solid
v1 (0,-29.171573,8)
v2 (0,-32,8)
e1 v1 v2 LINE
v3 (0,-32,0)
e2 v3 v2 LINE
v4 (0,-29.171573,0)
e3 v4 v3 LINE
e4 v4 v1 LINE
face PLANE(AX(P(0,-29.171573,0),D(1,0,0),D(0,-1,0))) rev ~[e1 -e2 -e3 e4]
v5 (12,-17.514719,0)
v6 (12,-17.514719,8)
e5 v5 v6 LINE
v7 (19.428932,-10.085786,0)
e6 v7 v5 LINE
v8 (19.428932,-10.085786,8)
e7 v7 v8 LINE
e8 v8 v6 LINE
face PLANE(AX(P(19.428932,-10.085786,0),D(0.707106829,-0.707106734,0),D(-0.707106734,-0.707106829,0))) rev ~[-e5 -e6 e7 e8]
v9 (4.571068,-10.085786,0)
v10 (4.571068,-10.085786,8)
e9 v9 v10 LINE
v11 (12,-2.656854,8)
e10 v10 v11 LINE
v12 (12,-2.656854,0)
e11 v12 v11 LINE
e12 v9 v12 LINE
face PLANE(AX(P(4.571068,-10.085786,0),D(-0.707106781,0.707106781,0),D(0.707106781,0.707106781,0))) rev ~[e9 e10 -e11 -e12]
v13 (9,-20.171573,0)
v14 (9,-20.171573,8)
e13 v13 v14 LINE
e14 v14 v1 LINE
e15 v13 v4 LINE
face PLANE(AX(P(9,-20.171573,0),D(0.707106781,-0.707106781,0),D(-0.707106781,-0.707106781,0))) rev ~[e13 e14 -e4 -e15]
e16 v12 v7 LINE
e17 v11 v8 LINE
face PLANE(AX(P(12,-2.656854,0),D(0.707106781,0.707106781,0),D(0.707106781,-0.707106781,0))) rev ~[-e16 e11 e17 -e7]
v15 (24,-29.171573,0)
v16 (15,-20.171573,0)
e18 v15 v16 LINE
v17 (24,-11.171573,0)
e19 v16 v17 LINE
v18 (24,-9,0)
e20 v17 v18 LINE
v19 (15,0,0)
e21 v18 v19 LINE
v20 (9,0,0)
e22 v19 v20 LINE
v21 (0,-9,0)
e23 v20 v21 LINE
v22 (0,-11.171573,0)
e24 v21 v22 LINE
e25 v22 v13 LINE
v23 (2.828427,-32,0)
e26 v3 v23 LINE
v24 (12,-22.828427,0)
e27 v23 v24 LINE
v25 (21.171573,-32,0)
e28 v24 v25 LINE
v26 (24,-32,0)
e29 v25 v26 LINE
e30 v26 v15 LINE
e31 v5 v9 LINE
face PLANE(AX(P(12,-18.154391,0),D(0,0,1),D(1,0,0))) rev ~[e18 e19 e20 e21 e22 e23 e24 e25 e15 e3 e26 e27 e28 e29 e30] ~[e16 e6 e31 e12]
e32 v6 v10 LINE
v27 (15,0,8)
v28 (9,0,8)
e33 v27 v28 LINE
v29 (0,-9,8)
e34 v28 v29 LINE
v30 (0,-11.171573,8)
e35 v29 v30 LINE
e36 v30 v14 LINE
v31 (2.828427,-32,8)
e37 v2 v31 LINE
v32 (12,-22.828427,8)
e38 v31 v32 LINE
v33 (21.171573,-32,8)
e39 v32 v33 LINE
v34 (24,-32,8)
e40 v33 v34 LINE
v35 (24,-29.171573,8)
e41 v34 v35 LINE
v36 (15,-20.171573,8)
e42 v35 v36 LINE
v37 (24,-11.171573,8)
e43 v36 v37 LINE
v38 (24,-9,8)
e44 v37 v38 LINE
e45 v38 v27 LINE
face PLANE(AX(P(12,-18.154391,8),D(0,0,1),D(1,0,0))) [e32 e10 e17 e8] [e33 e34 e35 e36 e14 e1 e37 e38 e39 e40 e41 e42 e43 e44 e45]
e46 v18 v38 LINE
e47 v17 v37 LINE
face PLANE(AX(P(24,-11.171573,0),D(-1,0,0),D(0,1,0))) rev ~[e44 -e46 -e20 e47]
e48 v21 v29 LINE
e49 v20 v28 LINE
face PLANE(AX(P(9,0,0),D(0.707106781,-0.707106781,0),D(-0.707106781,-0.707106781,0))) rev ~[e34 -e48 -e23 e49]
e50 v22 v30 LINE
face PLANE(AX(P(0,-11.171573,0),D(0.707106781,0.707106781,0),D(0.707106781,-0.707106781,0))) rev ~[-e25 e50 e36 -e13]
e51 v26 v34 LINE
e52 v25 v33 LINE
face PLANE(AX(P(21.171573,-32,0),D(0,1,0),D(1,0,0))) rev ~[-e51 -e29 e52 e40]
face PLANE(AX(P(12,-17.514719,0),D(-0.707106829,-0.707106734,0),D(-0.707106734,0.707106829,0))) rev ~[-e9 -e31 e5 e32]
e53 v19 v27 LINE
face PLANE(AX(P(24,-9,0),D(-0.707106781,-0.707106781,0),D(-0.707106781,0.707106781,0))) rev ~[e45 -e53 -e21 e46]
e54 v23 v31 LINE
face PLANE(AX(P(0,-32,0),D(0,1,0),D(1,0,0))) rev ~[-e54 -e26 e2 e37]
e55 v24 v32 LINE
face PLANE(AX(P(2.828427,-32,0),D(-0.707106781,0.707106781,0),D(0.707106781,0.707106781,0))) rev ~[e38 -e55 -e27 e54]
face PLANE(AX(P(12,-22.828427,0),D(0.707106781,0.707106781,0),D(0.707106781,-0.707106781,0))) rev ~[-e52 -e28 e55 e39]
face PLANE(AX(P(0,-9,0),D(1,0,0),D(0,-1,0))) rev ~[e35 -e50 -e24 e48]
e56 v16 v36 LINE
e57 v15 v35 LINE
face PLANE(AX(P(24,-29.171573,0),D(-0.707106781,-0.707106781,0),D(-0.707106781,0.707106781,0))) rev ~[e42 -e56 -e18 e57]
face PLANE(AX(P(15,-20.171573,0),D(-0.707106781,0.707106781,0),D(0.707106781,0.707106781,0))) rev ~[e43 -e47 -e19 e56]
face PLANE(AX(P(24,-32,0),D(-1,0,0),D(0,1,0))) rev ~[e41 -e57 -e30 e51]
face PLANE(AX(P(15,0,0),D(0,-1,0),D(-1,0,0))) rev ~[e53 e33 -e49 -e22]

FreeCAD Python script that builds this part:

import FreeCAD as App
import Part
import Sketcher

V = App.Vector
Q = App.Units.Quantity

doc = App.newDocument("Part")
body = doc.addObject("PartDesign::Body", "Body")

sketch1 = body.newObject("Sketcher::SketchObject", "Sketch")
sketch1.AttachmentSupport = (doc.getObject("XY_Plane"), [""])
sketch1.MapMode = "FlatFace"
sketch1.addGeometry([
    Part.LineSegment(V(15, 0, 0), V(9, 0, 0)),
    Part.LineSegment(V(9, 0, 0), V(0, -9, 0)),
    Part.LineSegment(V(0, -9, 0), V(0, -11.171573, 0)),
    Part.LineSegment(V(0, -11.171573, 0), V(9, -20.171573, 0)),
    Part.LineSegment(V(9, -20.171573, 0), V(0, -29.171573, 0)),
    Part.LineSegment(V(0, -29.171573, 0), V(0, -32, 0)),
    Part.LineSegment(V(0, -32, 0), V(2.828427, -32, 0)),
    Part.LineSegment(V(2.828427, -32, 0), V(12, -22.828427, 0)),
    Part.LineSegment(V(12, -22.828427, 0), V(21.171573, -32, 0)),
    Part.LineSegment(V(21.171573, -32, 0), V(24, -32, 0)),
    Part.LineSegment(V(24, -32, 0), V(24, -29.171573, 0)),
    Part.LineSegment(V(24, -29.171573, 0), V(15, -20.171573, 0)),
    Part.LineSegment(V(15, -20.171573, 0), V(24, -11.171573, 0)),
    Part.LineSegment(V(24, -11.171573, 0), V(24, -9, 0)),
    Part.LineSegment(V(24, -9, 0), V(15, 0, 0)),
    Part.LineSegment(V(12, -2.656854, 0), V(19.428932, -10.085786, 0)),
    Part.LineSegment(V(19.428932, -10.085786, 0), V(12, -17.514719, 0)),
    Part.LineSegment(V(12, -17.514719, 0), V(4.571068, -10.085786, 0)),
    Part.LineSegment(V(4.571068, -10.085786, 0), V(12, -2.656854, 0)),
], False)
sketch1.addConstraint([
    Sketcher.Constraint("Coincident", 0, 2, 1, 1),
    Sketcher.Constraint("Coincident", 1, 2, 2, 1),
    Sketcher.Constraint("Coincident", 2, 2, 3, 1),
    Sketcher.Constraint("Coincident", 3, 2, 4, 1),
    Sketcher.Constraint("Coincident", 4, 2, 5, 1),
    Sketcher.Constraint("Coincident", 5, 2, 6, 1),
    Sketcher.Constraint("Coincident", 6, 2, 7, 1),
    Sketcher.Constraint("Coincident", 7, 2, 8, 1),
    Sketcher.Constraint("Coincident", 8, 2, 9, 1),
    Sketcher.Constraint("Coincident", 9, 2, 10, 1),
    Sketcher.Constraint("Coincident", 10, 2, 11, 1),
    Sketcher.Constraint("Coincident", 11, 2, 12, 1),
    Sketcher.Constraint("Coincident", 12, 2, 13, 1),
    Sketcher.Constraint("Coincident", 13, 2, 14, 1),
    Sketcher.Constraint("Coincident", 14, 2, 0, 1),
    Sketcher.Constraint("Coincident", 15, 2, 16, 1),
    Sketcher.Constraint("Coincident", 16, 2, 17, 1),
    Sketcher.Constraint("Coincident", 17, 2, 18, 1),
    Sketcher.Constraint("Coincident", 18, 2, 15, 1),
    Sketcher.Constraint("Horizontal", 0),
    Sketcher.Constraint("Vertical", 2),
    Sketcher.Constraint("Vertical", 5),
    Sketcher.Constraint("Horizontal", 6),
    Sketcher.Constraint("Horizontal", 9),
    Sketcher.Constraint("Vertical", 10),
    Sketcher.Constraint("Vertical", 13),
    Sketcher.Constraint("PointOnObject", 0, 2, -1),
    Sketcher.Constraint("PointOnObject", 1, 2, -2),
    Sketcher.Constraint("PointOnObject", 4, 2, -2),
    Sketcher.Constraint("Perpendicular", 1, 3),
    Sketcher.Constraint("Perpendicular", 3, 4),
    Sketcher.Constraint("Parallel", 4, 7),
    Sketcher.Constraint("Perpendicular", 7, 8),
    Sketcher.Constraint("Parallel", 8, 11),
    Sketcher.Constraint("Perpendicular", 11, 12),
    Sketcher.Constraint("Perpendicular", 12, 14),
    Sketcher.Constraint("Parallel", 14, 15),
    Sketcher.Constraint("Perpendicular", 15, 16),
    Sketcher.Constraint("Perpendicular", 16, 17),
    Sketcher.Constraint("Perpendicular", 17, 18),
    Sketcher.Constraint("Horizontal", 6, 2, 8, 2),
    Sketcher.Constraint("Horizontal", 4, 2, 10, 2),
    Sketcher.Constraint("Horizontal", 3, 2, 11, 2),
    Sketcher.Constraint("Horizontal", 2, 2, 12, 2),
    Sketcher.Constraint("Horizontal", 1, 2, 13, 2),
    Sketcher.Constraint("Horizontal", 15, 2, 17, 2),
    Sketcher.Constraint("Vertical", 0, 2, 3, 2),
    Sketcher.Constraint("Vertical", 10, 2, 12, 2),
    Sketcher.Constraint("Vertical", 7, 2, 16, 2),
    Sketcher.Constraint("Equal", 6, 9),
    Sketcher.Constraint("Equal", 9, 5),
    Sketcher.Constraint("DistanceX", 0, 2, 0, 1, Q("6 mm")),
    Sketcher.Constraint("DistanceX", -1, 1, 0, 2, Q("9 mm")),
    Sketcher.Constraint("DistanceY", 5, 2, -1, 1, Q("32 mm")),
    Sketcher.Constraint("DistanceX", 6, 1, 6, 2, Q("2.828427 mm")),
    Sketcher.Constraint("DistanceX", -1, 1, 15, 2, Q("19.428932 mm")),
    Sketcher.Constraint("DistanceY", 16, 2, -1, 1, Q("17.514719 mm")),
])
pad1 = body.newObject("PartDesign::Pad", "Pad")
pad1.Profile = sketch1
pad1.Length = 8

doc.recompute()
